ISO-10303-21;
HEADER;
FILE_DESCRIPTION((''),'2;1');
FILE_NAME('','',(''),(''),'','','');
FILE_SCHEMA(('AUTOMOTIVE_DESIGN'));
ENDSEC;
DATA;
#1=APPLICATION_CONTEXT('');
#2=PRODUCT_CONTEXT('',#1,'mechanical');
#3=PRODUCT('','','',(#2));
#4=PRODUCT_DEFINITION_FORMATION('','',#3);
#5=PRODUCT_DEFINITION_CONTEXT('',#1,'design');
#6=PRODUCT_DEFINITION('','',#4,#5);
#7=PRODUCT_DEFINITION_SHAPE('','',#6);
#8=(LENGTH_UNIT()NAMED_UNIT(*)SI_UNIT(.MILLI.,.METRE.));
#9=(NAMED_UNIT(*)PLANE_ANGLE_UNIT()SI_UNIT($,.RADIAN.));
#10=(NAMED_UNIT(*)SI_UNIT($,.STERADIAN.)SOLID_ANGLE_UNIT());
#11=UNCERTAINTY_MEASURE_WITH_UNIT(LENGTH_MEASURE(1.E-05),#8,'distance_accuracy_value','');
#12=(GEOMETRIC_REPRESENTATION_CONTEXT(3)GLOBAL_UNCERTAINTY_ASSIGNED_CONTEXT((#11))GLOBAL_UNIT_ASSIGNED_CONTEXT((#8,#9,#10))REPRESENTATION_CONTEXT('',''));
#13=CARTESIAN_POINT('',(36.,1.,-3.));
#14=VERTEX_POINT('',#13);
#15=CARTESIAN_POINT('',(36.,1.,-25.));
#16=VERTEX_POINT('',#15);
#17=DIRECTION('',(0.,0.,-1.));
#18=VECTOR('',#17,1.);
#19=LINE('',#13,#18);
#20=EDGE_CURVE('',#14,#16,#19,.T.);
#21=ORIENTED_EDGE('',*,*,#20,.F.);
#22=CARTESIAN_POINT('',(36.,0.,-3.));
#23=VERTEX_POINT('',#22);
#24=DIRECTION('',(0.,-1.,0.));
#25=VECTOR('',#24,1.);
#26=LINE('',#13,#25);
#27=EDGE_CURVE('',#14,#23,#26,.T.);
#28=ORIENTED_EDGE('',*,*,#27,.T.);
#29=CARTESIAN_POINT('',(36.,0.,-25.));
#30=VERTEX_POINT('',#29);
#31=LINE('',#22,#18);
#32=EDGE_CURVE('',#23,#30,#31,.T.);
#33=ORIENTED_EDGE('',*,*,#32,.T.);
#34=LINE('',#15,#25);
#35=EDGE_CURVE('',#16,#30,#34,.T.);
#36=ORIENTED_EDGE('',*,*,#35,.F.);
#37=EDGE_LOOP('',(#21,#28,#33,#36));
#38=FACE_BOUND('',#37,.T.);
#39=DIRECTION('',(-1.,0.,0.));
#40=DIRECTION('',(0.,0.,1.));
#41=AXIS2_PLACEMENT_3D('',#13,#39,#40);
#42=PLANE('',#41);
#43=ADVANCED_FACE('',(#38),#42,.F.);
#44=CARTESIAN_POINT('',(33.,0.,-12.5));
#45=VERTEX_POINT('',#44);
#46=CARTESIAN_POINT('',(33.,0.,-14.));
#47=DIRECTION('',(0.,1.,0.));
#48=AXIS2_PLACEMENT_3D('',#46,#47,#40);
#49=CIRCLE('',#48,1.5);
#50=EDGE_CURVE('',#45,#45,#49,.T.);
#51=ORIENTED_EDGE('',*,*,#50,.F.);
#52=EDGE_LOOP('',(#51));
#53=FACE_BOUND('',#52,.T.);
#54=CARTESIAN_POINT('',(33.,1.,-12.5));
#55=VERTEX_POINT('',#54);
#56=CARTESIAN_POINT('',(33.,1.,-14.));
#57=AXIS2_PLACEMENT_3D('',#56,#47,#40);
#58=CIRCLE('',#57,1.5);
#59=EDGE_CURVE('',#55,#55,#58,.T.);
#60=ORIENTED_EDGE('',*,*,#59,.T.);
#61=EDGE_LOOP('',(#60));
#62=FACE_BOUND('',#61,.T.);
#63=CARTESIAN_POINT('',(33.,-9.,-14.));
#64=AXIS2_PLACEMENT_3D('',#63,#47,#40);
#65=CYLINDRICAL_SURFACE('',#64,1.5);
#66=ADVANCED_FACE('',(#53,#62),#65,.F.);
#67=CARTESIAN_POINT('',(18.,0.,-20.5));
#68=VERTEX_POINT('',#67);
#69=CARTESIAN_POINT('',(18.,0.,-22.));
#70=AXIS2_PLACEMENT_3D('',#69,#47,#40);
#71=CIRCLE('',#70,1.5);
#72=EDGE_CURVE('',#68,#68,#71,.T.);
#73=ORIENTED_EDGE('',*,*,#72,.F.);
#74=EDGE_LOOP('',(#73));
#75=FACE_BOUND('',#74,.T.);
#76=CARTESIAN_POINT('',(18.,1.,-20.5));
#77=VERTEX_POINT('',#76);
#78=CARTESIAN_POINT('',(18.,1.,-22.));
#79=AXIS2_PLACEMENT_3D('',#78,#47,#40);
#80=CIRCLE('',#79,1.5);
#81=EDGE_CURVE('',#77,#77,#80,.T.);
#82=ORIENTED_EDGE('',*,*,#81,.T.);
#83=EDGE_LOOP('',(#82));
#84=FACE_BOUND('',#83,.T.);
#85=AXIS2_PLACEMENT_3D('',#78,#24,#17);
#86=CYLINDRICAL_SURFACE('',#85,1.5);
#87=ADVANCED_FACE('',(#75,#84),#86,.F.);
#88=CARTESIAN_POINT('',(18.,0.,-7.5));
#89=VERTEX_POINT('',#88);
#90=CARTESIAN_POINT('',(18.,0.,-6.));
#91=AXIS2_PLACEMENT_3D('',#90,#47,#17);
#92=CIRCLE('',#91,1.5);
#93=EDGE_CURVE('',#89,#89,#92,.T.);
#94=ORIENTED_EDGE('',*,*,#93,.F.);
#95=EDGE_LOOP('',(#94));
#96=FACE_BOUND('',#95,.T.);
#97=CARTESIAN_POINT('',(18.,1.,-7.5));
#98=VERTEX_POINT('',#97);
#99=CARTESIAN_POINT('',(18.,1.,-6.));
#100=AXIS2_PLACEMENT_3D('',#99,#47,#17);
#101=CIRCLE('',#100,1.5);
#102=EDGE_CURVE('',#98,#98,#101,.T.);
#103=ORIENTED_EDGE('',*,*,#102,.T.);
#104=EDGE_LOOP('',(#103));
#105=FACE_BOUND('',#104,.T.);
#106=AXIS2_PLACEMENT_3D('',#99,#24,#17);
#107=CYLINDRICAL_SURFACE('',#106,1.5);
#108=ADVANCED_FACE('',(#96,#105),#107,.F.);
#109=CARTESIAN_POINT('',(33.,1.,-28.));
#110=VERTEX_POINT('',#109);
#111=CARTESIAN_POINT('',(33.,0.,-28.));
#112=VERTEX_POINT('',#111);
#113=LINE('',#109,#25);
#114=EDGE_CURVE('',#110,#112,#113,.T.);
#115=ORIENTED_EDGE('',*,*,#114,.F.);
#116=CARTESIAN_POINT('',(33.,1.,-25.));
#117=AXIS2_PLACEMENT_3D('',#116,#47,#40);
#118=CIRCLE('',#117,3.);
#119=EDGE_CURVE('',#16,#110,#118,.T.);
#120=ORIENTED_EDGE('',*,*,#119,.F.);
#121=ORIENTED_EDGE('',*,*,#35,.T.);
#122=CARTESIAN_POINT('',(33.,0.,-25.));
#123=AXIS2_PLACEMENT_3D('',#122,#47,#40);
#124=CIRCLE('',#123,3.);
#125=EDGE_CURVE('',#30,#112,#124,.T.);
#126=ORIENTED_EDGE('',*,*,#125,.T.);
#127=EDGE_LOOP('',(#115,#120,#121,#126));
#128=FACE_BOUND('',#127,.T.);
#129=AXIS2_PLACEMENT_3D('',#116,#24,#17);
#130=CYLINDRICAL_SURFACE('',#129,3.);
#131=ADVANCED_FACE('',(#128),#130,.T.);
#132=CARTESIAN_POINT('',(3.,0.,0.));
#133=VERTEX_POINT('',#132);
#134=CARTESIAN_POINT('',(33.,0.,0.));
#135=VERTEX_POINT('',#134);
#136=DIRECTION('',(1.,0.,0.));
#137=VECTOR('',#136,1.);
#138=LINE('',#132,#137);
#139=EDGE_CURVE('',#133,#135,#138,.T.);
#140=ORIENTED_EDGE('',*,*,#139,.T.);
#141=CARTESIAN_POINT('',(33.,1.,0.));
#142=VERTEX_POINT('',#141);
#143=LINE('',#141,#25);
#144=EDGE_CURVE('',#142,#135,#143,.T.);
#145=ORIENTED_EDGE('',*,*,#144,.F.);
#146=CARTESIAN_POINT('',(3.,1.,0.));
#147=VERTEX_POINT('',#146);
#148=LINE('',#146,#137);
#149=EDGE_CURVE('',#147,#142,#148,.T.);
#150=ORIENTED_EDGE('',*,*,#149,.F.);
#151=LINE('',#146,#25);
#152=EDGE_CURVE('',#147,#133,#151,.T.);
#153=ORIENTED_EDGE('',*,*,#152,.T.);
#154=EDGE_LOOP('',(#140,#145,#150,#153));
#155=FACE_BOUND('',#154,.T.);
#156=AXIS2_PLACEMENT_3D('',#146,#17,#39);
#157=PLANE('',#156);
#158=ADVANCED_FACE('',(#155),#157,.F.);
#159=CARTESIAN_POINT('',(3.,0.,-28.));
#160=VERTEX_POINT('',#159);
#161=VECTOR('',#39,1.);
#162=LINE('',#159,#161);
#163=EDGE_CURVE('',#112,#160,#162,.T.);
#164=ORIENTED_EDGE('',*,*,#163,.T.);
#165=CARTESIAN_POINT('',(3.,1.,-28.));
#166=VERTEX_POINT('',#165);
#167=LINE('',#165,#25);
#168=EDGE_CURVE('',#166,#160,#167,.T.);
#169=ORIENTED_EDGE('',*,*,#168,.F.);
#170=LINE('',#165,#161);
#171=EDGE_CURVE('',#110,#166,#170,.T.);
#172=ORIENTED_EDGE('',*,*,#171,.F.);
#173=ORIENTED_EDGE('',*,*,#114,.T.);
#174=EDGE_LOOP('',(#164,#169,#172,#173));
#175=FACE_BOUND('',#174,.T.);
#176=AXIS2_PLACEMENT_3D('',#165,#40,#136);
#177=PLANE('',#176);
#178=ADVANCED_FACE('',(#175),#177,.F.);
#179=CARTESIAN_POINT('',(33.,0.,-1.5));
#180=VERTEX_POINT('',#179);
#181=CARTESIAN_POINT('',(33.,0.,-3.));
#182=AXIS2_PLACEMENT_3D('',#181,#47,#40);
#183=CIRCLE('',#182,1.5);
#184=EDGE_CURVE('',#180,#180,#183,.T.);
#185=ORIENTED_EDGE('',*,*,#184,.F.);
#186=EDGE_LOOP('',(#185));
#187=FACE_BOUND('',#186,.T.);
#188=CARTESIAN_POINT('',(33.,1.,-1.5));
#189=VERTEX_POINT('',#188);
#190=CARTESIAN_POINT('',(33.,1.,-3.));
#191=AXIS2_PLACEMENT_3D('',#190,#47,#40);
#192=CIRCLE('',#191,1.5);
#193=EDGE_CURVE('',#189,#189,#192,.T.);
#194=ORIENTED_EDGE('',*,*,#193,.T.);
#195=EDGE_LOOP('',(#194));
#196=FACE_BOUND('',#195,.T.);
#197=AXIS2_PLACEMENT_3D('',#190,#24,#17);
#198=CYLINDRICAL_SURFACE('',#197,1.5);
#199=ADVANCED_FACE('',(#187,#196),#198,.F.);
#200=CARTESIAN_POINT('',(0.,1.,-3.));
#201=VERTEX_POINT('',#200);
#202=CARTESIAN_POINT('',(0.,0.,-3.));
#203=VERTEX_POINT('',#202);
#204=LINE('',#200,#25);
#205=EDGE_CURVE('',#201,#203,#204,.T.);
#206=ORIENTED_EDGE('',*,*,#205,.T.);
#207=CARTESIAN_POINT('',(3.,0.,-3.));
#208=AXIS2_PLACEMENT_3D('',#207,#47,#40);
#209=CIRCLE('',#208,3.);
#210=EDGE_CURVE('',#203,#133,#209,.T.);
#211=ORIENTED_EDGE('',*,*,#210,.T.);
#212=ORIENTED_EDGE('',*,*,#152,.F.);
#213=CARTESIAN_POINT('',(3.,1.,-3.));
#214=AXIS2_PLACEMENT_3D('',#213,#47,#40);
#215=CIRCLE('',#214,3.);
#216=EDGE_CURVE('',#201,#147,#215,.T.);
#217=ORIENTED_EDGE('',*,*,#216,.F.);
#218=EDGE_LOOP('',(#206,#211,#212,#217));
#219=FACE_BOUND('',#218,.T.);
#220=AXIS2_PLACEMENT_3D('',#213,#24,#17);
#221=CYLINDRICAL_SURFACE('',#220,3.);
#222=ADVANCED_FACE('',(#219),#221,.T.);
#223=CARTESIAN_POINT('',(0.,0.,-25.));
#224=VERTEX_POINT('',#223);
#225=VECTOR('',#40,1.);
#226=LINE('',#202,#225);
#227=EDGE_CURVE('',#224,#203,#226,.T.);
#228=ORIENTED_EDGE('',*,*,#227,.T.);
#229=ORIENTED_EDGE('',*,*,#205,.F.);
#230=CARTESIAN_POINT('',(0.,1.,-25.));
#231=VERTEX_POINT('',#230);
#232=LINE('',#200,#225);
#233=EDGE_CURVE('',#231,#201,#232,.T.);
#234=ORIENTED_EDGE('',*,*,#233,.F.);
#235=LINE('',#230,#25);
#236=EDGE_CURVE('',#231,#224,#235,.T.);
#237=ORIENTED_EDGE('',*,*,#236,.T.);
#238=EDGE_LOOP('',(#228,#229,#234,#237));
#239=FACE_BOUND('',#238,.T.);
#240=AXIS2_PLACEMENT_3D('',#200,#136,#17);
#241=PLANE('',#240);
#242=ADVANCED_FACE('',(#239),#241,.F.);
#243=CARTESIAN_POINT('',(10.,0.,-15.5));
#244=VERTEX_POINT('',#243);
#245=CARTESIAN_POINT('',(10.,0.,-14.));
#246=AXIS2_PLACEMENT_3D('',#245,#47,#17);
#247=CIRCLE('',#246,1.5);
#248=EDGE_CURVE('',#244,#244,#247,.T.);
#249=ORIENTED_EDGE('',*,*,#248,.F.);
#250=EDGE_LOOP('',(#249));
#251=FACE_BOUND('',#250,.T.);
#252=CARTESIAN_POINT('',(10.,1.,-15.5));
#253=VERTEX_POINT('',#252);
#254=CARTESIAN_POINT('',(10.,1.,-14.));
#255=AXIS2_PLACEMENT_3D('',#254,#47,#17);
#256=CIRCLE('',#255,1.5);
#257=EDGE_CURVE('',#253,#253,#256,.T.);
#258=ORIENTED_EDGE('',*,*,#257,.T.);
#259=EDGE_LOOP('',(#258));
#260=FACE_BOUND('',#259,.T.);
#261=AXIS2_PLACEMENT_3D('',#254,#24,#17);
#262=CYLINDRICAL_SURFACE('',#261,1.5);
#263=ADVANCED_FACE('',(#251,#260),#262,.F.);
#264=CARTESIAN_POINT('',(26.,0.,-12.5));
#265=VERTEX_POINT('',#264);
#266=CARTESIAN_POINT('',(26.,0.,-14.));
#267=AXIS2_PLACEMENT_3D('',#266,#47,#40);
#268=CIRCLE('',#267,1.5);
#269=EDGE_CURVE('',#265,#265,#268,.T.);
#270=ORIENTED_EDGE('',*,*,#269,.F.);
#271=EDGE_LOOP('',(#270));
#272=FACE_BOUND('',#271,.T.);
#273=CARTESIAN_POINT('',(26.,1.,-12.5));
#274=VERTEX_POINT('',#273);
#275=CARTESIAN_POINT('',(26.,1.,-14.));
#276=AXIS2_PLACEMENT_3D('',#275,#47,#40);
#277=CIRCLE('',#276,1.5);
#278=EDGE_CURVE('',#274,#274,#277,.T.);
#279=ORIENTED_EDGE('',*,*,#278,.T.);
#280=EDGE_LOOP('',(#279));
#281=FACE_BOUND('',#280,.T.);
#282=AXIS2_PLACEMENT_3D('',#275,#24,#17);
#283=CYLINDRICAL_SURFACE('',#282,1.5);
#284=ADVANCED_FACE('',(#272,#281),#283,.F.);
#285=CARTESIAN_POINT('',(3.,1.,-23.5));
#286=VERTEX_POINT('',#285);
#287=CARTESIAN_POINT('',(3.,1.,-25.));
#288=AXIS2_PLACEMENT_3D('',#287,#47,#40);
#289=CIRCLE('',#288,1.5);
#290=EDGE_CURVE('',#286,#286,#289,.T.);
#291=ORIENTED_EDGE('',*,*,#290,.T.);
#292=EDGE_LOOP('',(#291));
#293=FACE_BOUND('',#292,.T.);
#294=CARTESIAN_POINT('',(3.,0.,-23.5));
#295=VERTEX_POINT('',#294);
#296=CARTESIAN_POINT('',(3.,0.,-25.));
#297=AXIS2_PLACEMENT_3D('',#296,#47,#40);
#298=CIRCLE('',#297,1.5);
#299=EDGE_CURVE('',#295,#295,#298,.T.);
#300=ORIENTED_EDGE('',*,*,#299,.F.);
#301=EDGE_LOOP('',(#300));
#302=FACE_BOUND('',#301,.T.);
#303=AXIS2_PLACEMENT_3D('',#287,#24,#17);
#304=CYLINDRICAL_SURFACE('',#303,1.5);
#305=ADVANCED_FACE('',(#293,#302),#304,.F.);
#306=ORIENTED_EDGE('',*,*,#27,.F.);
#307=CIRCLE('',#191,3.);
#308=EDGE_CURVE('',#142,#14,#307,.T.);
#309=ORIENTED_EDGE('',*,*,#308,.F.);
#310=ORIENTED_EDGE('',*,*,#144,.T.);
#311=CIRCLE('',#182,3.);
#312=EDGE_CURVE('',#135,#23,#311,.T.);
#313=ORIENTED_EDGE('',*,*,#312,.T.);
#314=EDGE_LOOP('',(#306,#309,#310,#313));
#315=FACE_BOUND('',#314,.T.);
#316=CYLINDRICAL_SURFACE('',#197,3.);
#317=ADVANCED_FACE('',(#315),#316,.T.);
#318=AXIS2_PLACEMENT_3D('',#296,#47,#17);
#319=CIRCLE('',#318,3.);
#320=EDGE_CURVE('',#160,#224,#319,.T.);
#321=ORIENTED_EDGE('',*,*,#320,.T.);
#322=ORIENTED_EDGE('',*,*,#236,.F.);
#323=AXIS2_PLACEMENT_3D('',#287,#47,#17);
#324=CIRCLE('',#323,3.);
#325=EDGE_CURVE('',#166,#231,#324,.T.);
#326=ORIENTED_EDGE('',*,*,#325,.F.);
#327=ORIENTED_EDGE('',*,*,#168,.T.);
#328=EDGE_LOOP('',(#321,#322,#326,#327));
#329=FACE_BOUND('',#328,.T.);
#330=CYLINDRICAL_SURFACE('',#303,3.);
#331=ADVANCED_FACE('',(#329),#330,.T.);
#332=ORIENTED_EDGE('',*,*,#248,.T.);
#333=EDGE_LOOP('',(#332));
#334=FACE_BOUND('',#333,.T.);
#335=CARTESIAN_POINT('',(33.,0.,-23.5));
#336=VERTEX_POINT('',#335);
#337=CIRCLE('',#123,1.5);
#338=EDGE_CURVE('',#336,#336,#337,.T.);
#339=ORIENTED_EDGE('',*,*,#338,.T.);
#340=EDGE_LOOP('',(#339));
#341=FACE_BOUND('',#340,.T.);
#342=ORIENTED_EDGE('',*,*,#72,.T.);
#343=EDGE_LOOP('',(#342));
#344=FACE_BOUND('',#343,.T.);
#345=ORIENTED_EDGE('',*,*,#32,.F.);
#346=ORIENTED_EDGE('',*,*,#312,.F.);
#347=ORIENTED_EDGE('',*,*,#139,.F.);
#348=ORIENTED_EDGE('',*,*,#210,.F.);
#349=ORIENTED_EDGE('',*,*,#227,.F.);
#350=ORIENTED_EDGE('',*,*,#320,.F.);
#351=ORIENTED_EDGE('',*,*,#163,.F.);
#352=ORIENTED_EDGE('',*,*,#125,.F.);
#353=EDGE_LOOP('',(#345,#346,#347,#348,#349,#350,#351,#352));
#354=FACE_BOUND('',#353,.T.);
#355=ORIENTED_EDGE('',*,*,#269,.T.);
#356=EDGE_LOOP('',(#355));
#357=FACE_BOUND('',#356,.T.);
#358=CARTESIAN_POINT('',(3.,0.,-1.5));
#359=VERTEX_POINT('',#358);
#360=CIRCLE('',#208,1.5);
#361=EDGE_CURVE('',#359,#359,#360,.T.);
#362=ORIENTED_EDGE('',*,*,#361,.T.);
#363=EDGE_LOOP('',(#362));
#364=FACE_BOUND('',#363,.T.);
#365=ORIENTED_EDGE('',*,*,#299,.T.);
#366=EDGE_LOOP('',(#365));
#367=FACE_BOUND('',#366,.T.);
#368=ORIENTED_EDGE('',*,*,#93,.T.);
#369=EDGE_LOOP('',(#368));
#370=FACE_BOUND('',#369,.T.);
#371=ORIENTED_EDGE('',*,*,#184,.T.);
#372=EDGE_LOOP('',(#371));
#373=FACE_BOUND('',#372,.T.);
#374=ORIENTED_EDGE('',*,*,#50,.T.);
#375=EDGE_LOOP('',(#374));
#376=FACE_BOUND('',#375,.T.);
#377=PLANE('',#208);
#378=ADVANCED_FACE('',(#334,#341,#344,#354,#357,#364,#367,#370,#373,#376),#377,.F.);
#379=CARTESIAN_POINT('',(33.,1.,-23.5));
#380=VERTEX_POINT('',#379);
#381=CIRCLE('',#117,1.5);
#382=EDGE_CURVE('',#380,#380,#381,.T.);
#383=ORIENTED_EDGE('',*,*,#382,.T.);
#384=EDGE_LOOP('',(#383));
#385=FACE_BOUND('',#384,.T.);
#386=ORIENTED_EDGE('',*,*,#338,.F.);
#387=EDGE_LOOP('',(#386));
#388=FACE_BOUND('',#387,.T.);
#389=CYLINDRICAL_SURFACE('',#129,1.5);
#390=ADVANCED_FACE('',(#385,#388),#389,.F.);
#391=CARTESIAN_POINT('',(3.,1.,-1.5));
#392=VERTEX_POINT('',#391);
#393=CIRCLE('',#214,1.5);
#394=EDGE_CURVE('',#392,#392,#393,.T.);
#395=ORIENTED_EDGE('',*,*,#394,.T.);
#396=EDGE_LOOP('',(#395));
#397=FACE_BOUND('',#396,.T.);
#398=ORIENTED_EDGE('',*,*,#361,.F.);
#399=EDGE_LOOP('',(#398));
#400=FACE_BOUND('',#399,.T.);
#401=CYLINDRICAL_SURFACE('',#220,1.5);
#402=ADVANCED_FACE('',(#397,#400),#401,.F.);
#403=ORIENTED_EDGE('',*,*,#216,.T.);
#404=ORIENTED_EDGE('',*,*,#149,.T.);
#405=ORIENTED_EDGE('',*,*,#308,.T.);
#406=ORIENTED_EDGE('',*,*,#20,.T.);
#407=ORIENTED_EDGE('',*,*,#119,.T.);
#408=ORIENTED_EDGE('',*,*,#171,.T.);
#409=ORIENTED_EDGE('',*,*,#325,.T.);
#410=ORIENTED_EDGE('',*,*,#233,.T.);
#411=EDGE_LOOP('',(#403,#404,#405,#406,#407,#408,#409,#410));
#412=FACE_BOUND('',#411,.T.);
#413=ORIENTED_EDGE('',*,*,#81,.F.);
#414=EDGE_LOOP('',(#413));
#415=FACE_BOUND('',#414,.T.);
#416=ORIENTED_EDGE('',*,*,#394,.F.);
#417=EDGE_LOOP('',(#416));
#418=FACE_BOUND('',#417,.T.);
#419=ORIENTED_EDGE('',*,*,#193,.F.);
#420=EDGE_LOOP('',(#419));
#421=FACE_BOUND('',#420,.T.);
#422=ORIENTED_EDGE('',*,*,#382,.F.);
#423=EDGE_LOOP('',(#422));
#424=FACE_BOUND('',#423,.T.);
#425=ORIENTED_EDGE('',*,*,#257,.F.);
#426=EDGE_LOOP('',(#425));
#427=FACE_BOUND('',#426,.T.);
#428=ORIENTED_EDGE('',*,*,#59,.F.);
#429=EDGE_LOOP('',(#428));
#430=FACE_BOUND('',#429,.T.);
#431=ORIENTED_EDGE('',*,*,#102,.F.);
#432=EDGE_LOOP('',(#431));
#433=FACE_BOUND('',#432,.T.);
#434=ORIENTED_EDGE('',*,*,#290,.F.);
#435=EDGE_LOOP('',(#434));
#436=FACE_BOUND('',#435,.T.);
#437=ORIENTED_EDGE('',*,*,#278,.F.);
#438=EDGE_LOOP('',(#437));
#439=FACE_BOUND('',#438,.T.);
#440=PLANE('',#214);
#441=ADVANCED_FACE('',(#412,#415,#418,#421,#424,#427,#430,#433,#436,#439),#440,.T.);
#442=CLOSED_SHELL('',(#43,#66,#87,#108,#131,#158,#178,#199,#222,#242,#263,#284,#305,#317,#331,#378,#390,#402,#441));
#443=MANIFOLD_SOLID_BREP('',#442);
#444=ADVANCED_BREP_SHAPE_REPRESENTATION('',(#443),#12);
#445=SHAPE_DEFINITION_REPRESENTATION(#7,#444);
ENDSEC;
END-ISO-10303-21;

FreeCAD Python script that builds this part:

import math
import FreeCAD as App
import Part
import Sketcher
from FreeCAD import Vector
Q = App.Units.Quantity

doc = App.newDocument("Part")
params = doc.addObject("Spreadsheet::Sheet", "Params")
for row, (alias, value) in enumerate([
    ("sketch1_diameter", "3 mm"),
    ("sketch1_radius", "3 mm"),
    ("sketch1_width", "30 mm"),
    ("sketch1_height", "22 mm"),
    ("pad1_length", "1 mm"),
    ("sketch2_diameter", "3 mm"),
    ("pocket1_length", "10 mm"),
], start=1):
    params.set(f"A{row}", alias)
    params.set(f"B{row}", "=" + value)
    params.setAlias(f"B{row}", alias)

body = doc.addObject("PartDesign::Body", "Body")

# Sketch on XZ plane
sketch1 = body.newObject("Sketcher::SketchObject", "Sketch")
sketch1.AttachmentSupport = (doc.getObject("XZ_Plane"), [""])
sketch1.MapMode = "FlatFace"
sketch1.addGeometry([
    Part.LineSegment(Vector(3, 0, 0), Vector(33, 0, 0)),  # 0
    Part.ArcOfCircle(Part.Circle(Vector(33, -3, 0), Vector(0, 0, 1), 3), math.radians(0), math.radians(90)),  # 1
    Part.LineSegment(Vector(36, -3, 0), Vector(36, -25, 0)),  # 2
    Part.ArcOfCircle(Part.Circle(Vector(33, -25, 0), Vector(0, 0, 1), 3), math.radians(-90), math.radians(0)),  # 3
    Part.LineSegment(Vector(33, -28, 0), Vector(3, -28, 0)),  # 4
    Part.ArcOfCircle(Part.Circle(Vector(3, -25, 0), Vector(0, 0, 1), 3), math.radians(180), math.radians(270)),  # 5
    Part.LineSegment(Vector(0, -25, 0), Vector(0, -3, 0)),  # 6
    Part.ArcOfCircle(Part.Circle(Vector(3, -3, 0), Vector(0, 0, 1), 3), math.radians(90), math.radians(180)),  # 7
    Part.Circle(Vector(3, -3, 0), Vector(0, 0, 1), 1.5),  # 8
    Part.Circle(Vector(18, -6, 0), Vector(0, 0, 1), 1.5),  # 9
    Part.Circle(Vector(33, -3, 0), Vector(0, 0, 1), 1.5),  # 10
    Part.Circle(Vector(10, -14, 0), Vector(0, 0, 1), 1.5),  # 11
    Part.Circle(Vector(3, -25, 0), Vector(0, 0, 1), 1.5),  # 12
    Part.Circle(Vector(26, -14, 0), Vector(0, 0, 1), 1.5),  # 13
    Part.Circle(Vector(18, -22, 0), Vector(0, 0, 1), 1.5),  # 14
    Part.Circle(Vector(33, -25, 0), Vector(0, 0, 1), 1.5),  # 15
], False)
sketch1.addConstraint([
    Sketcher.Constraint("Tangent", 0, 2, 1, 2),
    Sketcher.Constraint("Tangent", 1, 1, 2, 1),
    Sketcher.Constraint("Tangent", 2, 2, 3, 2),
    Sketcher.Constraint("Tangent", 3, 1, 4, 1),
    Sketcher.Constraint("Tangent", 4, 2, 5, 2),
    Sketcher.Constraint("Tangent", 5, 1, 6, 1),
    Sketcher.Constraint("Tangent", 6, 2, 7, 2),
    Sketcher.Constraint("Tangent", 7, 1, 0, 1),
    Sketcher.Constraint("Horizontal", 0),
    Sketcher.Constraint("Vertical", 2),
    Sketcher.Constraint("Horizontal", 4),
    Sketcher.Constraint("Vertical", 6),
    Sketcher.Constraint("Coincident", 8, 3, 7, 3),
    Sketcher.Constraint("Coincident", 10, 3, 1, 3),
    Sketcher.Constraint("Coincident", 12, 3, 5, 3),
    Sketcher.Constraint("Coincident", 15, 3, 3, 3),
    Sketcher.Constraint("Equal", 1, 3),
    Sketcher.Constraint("Equal", 3, 5),
    Sketcher.Constraint("Equal", 5, 7),
    Sketcher.Constraint("Equal", 8, 9),
    Sketcher.Constraint("Equal", 9, 10),
    Sketcher.Constraint("Equal", 10, 11),
    Sketcher.Constraint("Equal", 11, 12),
    Sketcher.Constraint("Equal", 12, 13),
    Sketcher.Constraint("Equal", 13, 14),
    Sketcher.Constraint("Equal", 14, 15),
    Sketcher.Constraint("PointOnObject", 0, 2, -1),
    Sketcher.Constraint("PointOnObject", 5, 1, -2),
    Sketcher.Constraint("Horizontal", 11, 3, 13, 3),
    Sketcher.Constraint("Vertical", 9, 3, 14, 3),
    Sketcher.Constraint("Diameter", 8, Q("3 mm")),
    Sketcher.Constraint("Radius", 1, Q("3 mm")),
    Sketcher.Constraint("DistanceX", 0, 1, 0, 2, Q("30 mm")),
    Sketcher.Constraint("DistanceY", 2, 2, 2, 1, Q("22 mm")),
    Sketcher.Constraint("DistanceX", -1, 1, 9, 3, Q("18 mm")),
    Sketcher.Constraint("DistanceY", 9, 3, -1, 1, Q("6 mm")),
    Sketcher.Constraint("DistanceX", -1, 1, 11, 3, Q("10 mm")),
    Sketcher.Constraint("DistanceY", 11, 3, -1, 1, Q("14 mm")),
    Sketcher.Constraint("DistanceX", -1, 1, 13, 3, Q("26 mm")),
    Sketcher.Constraint("DistanceY", 14, 3, -1, 1, Q("22 mm")),
])
sketch1.setExpression("Constraints[30]", "Params.sketch1_diameter")
sketch1.setExpression("Constraints[31]", "Params.sketch1_radius")
sketch1.setExpression("Constraints[32]", "Params.sketch1_width")
sketch1.setExpression("Constraints[33]", "Params.sketch1_height")
pad1 = body.newObject("PartDesign::Pad", "Pad")
pad1.Profile = sketch1
pad1.setExpression("Length", "Params.pad1_length")
pad1.Reversed = True

# Sketch on XZ plane
sketch2 = body.newObject("Sketcher::SketchObject", "Sketch001")
sketch2.AttachmentSupport = (doc.getObject("XZ_Plane"), [""])
sketch2.MapMode = "FlatFace"
sketch2.AttachmentOffset = App.Placement(Vector(0, 0, -1), App.Rotation())
sketch2.addGeometry(Part.Circle(Vector(33, -14, 0), Vector(0, 0, 1), 1.5), False)
sketch2.addConstraint([
    Sketcher.Constraint("Diameter", 0, Q("3 mm")),
    Sketcher.Constraint("DistanceX", -1, 1, 0, 3, Q("33 mm")),
    Sketcher.Constraint("DistanceY", 0, 3, -1, 1, Q("14 mm")),
])
sketch2.setExpression("Constraints[0]", "Params.sketch2_diameter")
pocket1 = body.newObject("PartDesign::Pocket", "Pocket")
pocket1.Profile = sketch2
pocket1.setExpression("Length", "Params.pocket1_length")
pocket1.Reversed = True

doc.recompute()
